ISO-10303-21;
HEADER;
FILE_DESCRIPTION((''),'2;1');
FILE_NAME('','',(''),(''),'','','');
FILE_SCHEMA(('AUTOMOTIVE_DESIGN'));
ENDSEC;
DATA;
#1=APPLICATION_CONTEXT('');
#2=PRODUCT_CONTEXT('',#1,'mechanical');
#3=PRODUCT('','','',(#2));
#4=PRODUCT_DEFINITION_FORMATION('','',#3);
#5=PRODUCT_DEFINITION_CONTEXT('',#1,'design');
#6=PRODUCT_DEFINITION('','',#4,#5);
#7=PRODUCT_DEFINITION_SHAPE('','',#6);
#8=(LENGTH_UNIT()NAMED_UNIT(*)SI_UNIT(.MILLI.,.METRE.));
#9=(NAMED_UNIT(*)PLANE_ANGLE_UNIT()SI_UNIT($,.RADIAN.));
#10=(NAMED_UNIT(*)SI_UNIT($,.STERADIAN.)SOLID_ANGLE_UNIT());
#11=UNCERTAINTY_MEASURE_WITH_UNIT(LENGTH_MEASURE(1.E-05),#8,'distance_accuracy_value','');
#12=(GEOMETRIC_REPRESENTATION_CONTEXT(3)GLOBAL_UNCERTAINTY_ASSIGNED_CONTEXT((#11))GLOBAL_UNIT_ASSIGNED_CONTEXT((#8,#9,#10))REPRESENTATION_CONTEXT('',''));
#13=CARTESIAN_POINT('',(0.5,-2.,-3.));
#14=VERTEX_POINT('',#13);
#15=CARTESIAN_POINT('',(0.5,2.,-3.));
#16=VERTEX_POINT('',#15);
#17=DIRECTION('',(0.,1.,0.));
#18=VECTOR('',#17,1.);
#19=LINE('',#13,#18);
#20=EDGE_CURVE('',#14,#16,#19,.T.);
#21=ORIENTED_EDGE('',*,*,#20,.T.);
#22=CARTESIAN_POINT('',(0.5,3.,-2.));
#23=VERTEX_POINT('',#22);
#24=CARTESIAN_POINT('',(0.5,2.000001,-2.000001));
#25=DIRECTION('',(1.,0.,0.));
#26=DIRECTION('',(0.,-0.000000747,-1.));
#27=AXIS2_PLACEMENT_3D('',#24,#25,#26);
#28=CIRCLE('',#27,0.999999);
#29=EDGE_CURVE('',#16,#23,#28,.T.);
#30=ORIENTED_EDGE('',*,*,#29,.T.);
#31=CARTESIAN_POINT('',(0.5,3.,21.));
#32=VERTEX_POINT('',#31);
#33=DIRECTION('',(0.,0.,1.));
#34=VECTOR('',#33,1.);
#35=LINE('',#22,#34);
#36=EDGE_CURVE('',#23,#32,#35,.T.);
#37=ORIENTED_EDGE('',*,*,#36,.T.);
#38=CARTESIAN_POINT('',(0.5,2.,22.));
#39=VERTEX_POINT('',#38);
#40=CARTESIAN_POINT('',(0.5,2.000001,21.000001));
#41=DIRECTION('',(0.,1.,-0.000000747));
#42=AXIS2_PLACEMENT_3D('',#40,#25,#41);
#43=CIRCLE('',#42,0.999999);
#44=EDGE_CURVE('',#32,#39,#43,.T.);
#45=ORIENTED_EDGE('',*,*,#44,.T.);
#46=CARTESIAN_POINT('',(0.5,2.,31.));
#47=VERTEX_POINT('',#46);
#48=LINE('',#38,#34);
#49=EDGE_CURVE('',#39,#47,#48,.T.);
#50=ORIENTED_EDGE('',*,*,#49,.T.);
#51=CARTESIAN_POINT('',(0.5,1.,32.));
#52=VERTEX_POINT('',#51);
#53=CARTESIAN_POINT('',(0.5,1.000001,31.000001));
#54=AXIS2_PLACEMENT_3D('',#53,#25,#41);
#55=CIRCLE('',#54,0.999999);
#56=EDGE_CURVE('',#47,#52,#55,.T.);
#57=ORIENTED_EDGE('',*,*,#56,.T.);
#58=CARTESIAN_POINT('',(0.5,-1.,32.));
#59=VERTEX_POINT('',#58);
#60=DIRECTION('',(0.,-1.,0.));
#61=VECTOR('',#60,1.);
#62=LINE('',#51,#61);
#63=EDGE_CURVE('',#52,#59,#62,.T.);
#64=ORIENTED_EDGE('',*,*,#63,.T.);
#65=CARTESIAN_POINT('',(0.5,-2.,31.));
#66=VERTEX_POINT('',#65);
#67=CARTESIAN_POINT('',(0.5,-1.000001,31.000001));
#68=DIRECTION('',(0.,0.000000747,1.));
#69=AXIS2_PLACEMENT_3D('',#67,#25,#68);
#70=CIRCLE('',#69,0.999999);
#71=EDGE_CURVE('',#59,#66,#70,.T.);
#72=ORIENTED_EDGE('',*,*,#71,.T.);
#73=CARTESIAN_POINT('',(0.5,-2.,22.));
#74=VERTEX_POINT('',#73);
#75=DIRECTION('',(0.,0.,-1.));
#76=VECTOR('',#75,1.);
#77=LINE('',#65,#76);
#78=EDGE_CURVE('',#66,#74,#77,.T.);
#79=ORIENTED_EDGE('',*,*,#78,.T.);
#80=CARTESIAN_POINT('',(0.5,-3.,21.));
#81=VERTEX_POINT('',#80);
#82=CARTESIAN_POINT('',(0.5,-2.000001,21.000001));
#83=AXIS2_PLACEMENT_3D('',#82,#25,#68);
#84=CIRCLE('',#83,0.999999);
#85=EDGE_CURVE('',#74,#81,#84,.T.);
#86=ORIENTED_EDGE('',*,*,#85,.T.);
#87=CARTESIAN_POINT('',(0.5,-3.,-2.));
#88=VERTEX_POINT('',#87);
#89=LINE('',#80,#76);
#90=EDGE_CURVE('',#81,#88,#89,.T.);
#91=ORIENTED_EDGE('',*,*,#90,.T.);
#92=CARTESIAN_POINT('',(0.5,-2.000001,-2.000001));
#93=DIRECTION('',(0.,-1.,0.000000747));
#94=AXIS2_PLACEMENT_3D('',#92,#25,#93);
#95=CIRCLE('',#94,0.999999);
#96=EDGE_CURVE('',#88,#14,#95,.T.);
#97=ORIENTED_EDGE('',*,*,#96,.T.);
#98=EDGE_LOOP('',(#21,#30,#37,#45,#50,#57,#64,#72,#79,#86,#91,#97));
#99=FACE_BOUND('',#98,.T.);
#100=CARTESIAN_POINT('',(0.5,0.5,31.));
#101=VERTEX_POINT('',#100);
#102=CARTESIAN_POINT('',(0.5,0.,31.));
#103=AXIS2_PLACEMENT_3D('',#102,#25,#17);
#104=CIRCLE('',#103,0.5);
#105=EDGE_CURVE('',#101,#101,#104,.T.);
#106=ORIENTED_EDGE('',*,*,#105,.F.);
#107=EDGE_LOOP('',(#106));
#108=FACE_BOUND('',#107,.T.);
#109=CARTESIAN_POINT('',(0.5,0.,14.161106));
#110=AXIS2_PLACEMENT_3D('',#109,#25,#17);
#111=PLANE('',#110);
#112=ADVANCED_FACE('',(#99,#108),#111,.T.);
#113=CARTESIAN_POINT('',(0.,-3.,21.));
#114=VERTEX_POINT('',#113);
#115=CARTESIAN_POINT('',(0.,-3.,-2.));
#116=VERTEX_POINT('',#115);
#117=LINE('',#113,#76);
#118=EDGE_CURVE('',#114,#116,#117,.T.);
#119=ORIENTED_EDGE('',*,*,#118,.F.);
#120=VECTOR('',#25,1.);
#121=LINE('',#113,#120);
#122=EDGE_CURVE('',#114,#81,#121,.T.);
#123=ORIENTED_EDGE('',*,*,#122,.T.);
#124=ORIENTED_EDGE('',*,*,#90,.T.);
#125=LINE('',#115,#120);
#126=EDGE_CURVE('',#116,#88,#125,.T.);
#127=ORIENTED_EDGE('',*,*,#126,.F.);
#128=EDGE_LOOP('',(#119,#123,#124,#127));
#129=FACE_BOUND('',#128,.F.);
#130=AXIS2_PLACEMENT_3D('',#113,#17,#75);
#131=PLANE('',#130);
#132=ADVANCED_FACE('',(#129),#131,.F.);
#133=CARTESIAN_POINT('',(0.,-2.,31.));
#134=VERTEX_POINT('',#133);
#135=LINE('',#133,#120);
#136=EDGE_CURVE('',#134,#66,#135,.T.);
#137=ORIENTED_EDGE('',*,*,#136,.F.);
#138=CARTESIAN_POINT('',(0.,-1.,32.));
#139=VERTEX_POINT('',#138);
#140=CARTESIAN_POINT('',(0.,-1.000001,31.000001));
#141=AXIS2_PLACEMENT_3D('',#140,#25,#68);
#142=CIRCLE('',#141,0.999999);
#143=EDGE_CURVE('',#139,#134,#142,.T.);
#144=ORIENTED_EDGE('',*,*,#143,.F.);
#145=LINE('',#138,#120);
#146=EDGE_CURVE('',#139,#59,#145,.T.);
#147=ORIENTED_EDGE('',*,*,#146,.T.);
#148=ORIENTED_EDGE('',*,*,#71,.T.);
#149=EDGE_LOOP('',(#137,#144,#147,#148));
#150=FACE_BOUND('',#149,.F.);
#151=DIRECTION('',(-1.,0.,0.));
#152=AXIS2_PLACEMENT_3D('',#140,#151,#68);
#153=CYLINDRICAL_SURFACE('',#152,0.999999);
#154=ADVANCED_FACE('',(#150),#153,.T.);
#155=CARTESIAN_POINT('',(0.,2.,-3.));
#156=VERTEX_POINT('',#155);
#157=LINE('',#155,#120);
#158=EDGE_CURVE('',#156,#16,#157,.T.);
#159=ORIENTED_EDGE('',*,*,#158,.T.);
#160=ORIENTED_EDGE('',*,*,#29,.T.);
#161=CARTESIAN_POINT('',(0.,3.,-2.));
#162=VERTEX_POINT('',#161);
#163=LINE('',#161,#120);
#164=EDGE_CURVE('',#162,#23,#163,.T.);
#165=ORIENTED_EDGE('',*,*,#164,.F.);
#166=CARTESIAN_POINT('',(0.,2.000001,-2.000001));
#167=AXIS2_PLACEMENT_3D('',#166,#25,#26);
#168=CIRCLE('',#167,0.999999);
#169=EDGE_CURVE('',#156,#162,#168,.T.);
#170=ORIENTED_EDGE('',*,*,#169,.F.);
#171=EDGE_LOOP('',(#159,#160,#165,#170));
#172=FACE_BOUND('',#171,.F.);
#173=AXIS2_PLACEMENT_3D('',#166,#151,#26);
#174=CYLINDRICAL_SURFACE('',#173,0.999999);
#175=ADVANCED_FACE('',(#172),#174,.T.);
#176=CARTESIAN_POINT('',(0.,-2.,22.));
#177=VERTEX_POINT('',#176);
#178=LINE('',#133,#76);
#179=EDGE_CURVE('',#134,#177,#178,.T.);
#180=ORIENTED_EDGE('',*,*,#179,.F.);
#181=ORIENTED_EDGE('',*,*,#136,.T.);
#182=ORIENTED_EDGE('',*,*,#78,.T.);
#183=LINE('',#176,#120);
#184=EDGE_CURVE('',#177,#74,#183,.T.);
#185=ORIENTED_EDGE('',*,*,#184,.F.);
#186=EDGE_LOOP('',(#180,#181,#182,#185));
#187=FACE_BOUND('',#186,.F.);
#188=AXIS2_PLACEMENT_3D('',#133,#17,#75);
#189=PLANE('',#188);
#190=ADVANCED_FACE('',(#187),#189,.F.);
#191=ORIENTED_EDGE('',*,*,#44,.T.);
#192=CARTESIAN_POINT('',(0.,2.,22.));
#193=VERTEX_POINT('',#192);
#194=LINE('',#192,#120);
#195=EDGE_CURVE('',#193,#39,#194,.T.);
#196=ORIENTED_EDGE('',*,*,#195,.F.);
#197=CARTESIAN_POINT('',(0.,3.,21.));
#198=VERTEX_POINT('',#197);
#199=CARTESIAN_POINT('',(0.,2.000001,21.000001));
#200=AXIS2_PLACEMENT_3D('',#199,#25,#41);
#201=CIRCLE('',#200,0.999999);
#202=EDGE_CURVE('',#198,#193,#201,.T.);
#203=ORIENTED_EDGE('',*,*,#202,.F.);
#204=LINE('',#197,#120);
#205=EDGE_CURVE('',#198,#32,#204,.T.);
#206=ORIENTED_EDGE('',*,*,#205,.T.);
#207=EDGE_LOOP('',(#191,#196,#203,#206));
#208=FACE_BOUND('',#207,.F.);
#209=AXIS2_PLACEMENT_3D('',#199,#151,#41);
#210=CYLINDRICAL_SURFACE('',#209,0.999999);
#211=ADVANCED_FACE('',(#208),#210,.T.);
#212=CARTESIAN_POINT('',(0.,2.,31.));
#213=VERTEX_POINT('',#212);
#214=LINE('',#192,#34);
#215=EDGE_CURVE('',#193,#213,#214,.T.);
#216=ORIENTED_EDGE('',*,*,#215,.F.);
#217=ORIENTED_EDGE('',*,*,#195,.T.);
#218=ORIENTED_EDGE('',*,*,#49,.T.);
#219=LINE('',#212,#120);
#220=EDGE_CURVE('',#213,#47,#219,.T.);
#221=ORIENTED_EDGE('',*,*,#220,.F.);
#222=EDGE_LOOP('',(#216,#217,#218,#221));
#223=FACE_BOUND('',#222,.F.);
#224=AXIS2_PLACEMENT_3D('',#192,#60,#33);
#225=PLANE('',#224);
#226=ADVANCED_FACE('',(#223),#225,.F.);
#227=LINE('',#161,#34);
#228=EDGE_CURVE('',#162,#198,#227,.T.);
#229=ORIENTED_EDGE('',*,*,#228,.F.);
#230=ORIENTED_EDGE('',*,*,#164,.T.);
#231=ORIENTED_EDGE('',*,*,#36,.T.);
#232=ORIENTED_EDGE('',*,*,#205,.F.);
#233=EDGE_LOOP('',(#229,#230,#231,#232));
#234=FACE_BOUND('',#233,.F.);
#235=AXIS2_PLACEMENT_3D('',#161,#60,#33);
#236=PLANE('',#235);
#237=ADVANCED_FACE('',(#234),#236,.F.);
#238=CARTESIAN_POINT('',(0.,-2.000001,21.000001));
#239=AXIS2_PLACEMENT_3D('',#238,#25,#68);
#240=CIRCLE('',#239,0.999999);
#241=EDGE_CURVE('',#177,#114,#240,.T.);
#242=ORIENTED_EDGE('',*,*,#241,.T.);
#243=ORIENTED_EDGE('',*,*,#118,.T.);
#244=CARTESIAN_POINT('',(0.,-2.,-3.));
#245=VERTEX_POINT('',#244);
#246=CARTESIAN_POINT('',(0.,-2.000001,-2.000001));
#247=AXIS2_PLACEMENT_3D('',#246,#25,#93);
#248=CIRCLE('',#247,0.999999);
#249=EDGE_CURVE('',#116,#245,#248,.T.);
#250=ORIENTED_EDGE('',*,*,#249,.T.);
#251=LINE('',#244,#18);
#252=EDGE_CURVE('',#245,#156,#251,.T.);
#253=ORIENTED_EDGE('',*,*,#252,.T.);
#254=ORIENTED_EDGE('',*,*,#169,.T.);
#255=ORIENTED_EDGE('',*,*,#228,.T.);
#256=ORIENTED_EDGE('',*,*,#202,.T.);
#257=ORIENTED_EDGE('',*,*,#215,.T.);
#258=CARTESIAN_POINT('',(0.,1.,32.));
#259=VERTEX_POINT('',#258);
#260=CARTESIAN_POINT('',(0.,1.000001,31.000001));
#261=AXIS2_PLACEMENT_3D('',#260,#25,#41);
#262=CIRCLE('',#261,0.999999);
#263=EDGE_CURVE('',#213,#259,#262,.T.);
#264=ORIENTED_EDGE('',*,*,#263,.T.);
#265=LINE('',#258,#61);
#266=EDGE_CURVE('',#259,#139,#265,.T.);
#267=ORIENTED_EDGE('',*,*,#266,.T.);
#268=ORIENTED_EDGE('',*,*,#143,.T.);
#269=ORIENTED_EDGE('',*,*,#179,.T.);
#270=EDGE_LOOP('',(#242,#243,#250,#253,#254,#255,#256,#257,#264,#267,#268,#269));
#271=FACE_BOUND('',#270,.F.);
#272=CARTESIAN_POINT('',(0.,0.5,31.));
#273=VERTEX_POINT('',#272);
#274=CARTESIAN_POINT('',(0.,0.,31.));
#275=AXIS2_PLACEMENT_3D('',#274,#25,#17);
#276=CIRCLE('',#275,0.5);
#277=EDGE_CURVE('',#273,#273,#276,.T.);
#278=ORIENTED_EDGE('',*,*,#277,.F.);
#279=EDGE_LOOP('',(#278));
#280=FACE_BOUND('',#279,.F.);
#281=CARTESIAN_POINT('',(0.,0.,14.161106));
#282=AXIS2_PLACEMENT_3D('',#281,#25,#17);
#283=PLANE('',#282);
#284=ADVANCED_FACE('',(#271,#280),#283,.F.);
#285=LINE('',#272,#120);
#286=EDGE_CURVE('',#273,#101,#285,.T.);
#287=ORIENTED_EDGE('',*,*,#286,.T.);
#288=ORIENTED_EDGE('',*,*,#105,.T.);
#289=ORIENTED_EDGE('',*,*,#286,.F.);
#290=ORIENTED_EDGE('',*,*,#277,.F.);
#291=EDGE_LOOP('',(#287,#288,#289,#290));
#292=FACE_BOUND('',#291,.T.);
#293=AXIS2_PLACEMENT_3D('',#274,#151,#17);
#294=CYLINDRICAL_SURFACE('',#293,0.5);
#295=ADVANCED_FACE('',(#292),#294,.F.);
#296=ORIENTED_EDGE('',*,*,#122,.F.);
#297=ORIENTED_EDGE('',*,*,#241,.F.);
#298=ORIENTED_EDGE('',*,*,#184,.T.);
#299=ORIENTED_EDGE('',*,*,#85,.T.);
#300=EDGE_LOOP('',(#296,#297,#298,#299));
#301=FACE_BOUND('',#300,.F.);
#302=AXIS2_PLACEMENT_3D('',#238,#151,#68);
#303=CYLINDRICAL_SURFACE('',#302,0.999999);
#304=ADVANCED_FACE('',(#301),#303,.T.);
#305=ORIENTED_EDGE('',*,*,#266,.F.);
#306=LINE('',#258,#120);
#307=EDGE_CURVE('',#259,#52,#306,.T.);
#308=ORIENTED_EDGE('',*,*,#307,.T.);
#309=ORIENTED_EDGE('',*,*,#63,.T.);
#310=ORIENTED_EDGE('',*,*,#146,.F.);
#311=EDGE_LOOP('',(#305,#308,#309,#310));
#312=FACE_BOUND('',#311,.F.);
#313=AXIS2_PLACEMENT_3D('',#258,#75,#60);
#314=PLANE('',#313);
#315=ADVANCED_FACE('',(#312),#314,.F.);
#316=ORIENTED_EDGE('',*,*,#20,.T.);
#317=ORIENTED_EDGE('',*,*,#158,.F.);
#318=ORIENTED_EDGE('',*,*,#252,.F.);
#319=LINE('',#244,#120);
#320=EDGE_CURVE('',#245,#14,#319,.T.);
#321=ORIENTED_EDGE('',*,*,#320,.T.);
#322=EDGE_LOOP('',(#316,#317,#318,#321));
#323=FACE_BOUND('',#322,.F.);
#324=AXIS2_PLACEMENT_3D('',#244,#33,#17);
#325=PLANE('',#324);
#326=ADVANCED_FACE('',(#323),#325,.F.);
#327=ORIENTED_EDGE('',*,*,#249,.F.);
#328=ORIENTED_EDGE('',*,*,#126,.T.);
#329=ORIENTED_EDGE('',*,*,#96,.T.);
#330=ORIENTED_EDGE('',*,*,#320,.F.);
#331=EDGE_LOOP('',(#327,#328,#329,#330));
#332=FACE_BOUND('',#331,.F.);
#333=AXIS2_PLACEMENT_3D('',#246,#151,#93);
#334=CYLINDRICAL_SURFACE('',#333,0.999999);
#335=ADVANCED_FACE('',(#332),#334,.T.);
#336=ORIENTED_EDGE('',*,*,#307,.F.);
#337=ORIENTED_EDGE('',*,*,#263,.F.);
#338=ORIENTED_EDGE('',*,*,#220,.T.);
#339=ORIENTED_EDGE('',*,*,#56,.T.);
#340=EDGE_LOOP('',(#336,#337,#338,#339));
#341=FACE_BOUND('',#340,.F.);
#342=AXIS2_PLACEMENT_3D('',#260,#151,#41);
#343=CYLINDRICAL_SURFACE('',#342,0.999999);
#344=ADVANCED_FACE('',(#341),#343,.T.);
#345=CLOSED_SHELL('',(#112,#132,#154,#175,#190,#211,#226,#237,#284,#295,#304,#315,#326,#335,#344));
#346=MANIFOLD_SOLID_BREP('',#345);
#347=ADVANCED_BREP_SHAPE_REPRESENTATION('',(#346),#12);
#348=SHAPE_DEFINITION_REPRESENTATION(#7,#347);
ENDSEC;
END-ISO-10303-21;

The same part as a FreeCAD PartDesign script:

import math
import FreeCAD as App
import Part
import Sketcher
from FreeCAD import Vector
Q = App.Units.Quantity

doc = App.newDocument("Part")
body = doc.addObject("PartDesign::Body", "Body")

sketch1 = doc.addObject("Sketcher::SketchObject", "Sketch")
body.addObject(sketch1)
sketch1.AttachmentSupport = (doc.YZ_Plane, [""])
sketch1.MapMode = "FlatFace"
sketch1.addGeometry([
    Part.ArcOfCircle(Part.Circle(Vector(-2, -2, 0), Vector(0, 0, 1), 1), math.radians(180), math.radians(270)),
    Part.LineSegment(Vector(-2, -3, 0), Vector(2, -3, 0)),
    Part.ArcOfCircle(Part.Circle(Vector(2, -2, 0), Vector(0, 0, 1), 1), math.radians(-90), math.radians(0)),
    Part.LineSegment(Vector(3, -2, 0), Vector(3, 21, 0)),
    Part.ArcOfCircle(Part.Circle(Vector(2, 21, 0), Vector(0, 0, 1), 1), math.radians(0), math.radians(90)),
    Part.LineSegment(Vector(2, 22, 0), Vector(2, 31, 0)),
    Part.ArcOfCircle(Part.Circle(Vector(1, 31, 0), Vector(0, 0, 1), 1), math.radians(0), math.radians(90)),
    Part.LineSegment(Vector(1, 32, 0), Vector(-1, 32, 0)),
    Part.ArcOfCircle(Part.Circle(Vector(-1, 31, 0), Vector(0, 0, 1), 1), math.radians(90), math.radians(180)),
    Part.LineSegment(Vector(-2, 31, 0), Vector(-2, 22, 0)),
    Part.ArcOfCircle(Part.Circle(Vector(-2, 21, 0), Vector(0, 0, 1), 1), math.radians(90), math.radians(180)),
    Part.LineSegment(Vector(-3, 21, 0), Vector(-3, -2, 0)),
    Part.Circle(Vector(0, 31, 0), Vector(0, 0, 1), 0.5),
], False)
sketch1.addConstraint([
    Sketcher.Constraint("Tangent", 0, 2, 1, 1),
    Sketcher.Constraint("Tangent", 1, 2, 2, 1),
    Sketcher.Constraint("Tangent", 2, 2, 3, 1),
    Sketcher.Constraint("Tangent", 3, 2, 4, 1),
    Sketcher.Constraint("Coincident", 4, 2, 5, 1),
    Sketcher.Constraint("Tangent", 5, 2, 6, 1),
    Sketcher.Constraint("Tangent", 6, 2, 7, 1),
    Sketcher.Constraint("Tangent", 7, 2, 8, 1),
    Sketcher.Constraint("Tangent", 8, 2, 9, 1),
    Sketcher.Constraint("Coincident", 9, 2, 10, 1),
    Sketcher.Constraint("Tangent", 10, 2, 11, 1),
    Sketcher.Constraint("Tangent", 11, 2, 0, 1),
    Sketcher.Constraint("Horizontal", 1),
    Sketcher.Constraint("Vertical", 3),
    Sketcher.Constraint("Vertical", 5),
    Sketcher.Constraint("Horizontal", 7),
    Sketcher.Constraint("Vertical", 9),
    Sketcher.Constraint("Vertical", 11),
    Sketcher.Constraint("Equal", 0, 2),
    Sketcher.Constraint("Equal", 2, 4),
    Sketcher.Constraint("Equal", 4, 6),
    Sketcher.Constraint("Equal", 6, 8),
    Sketcher.Constraint("Equal", 8, 10),
    Sketcher.Constraint("Symmetric", 4, 3, 10, 3, -2),
    Sketcher.Constraint("PointOnObject", 12, 3, -2),
    Sketcher.Constraint("Horizontal", 8, 3, 12, 3),
    Sketcher.Constraint("Vertical", 1, 2, 4, 2),
    Sketcher.Constraint("Vertical", 0, 2, 8, 2),
    Sketcher.Constraint("Diameter", 12, Q("1 mm")),
    Sketcher.Constraint("Radius", 0, Q("0.999999 mm")),
    Sketcher.Constraint("DistanceX", 1, 1, 1, 2, Q("4 mm")),
    Sketcher.Constraint("DistanceY", 3, 1, 3, 2, Q("23 mm")),
    Sketcher.Constraint("DistanceY", 5, 1, 5, 2, Q("9 mm")),
    Sketcher.Constraint("DistanceY", 0, 3, -1, 1, Q("2.000001 mm")),
])
pad1 = doc.addObject("PartDesign::Pad", "Pad")
body.addObject(pad1)
pad1.Profile = sketch1
pad1.Length = 0.5

doc.recompute()
